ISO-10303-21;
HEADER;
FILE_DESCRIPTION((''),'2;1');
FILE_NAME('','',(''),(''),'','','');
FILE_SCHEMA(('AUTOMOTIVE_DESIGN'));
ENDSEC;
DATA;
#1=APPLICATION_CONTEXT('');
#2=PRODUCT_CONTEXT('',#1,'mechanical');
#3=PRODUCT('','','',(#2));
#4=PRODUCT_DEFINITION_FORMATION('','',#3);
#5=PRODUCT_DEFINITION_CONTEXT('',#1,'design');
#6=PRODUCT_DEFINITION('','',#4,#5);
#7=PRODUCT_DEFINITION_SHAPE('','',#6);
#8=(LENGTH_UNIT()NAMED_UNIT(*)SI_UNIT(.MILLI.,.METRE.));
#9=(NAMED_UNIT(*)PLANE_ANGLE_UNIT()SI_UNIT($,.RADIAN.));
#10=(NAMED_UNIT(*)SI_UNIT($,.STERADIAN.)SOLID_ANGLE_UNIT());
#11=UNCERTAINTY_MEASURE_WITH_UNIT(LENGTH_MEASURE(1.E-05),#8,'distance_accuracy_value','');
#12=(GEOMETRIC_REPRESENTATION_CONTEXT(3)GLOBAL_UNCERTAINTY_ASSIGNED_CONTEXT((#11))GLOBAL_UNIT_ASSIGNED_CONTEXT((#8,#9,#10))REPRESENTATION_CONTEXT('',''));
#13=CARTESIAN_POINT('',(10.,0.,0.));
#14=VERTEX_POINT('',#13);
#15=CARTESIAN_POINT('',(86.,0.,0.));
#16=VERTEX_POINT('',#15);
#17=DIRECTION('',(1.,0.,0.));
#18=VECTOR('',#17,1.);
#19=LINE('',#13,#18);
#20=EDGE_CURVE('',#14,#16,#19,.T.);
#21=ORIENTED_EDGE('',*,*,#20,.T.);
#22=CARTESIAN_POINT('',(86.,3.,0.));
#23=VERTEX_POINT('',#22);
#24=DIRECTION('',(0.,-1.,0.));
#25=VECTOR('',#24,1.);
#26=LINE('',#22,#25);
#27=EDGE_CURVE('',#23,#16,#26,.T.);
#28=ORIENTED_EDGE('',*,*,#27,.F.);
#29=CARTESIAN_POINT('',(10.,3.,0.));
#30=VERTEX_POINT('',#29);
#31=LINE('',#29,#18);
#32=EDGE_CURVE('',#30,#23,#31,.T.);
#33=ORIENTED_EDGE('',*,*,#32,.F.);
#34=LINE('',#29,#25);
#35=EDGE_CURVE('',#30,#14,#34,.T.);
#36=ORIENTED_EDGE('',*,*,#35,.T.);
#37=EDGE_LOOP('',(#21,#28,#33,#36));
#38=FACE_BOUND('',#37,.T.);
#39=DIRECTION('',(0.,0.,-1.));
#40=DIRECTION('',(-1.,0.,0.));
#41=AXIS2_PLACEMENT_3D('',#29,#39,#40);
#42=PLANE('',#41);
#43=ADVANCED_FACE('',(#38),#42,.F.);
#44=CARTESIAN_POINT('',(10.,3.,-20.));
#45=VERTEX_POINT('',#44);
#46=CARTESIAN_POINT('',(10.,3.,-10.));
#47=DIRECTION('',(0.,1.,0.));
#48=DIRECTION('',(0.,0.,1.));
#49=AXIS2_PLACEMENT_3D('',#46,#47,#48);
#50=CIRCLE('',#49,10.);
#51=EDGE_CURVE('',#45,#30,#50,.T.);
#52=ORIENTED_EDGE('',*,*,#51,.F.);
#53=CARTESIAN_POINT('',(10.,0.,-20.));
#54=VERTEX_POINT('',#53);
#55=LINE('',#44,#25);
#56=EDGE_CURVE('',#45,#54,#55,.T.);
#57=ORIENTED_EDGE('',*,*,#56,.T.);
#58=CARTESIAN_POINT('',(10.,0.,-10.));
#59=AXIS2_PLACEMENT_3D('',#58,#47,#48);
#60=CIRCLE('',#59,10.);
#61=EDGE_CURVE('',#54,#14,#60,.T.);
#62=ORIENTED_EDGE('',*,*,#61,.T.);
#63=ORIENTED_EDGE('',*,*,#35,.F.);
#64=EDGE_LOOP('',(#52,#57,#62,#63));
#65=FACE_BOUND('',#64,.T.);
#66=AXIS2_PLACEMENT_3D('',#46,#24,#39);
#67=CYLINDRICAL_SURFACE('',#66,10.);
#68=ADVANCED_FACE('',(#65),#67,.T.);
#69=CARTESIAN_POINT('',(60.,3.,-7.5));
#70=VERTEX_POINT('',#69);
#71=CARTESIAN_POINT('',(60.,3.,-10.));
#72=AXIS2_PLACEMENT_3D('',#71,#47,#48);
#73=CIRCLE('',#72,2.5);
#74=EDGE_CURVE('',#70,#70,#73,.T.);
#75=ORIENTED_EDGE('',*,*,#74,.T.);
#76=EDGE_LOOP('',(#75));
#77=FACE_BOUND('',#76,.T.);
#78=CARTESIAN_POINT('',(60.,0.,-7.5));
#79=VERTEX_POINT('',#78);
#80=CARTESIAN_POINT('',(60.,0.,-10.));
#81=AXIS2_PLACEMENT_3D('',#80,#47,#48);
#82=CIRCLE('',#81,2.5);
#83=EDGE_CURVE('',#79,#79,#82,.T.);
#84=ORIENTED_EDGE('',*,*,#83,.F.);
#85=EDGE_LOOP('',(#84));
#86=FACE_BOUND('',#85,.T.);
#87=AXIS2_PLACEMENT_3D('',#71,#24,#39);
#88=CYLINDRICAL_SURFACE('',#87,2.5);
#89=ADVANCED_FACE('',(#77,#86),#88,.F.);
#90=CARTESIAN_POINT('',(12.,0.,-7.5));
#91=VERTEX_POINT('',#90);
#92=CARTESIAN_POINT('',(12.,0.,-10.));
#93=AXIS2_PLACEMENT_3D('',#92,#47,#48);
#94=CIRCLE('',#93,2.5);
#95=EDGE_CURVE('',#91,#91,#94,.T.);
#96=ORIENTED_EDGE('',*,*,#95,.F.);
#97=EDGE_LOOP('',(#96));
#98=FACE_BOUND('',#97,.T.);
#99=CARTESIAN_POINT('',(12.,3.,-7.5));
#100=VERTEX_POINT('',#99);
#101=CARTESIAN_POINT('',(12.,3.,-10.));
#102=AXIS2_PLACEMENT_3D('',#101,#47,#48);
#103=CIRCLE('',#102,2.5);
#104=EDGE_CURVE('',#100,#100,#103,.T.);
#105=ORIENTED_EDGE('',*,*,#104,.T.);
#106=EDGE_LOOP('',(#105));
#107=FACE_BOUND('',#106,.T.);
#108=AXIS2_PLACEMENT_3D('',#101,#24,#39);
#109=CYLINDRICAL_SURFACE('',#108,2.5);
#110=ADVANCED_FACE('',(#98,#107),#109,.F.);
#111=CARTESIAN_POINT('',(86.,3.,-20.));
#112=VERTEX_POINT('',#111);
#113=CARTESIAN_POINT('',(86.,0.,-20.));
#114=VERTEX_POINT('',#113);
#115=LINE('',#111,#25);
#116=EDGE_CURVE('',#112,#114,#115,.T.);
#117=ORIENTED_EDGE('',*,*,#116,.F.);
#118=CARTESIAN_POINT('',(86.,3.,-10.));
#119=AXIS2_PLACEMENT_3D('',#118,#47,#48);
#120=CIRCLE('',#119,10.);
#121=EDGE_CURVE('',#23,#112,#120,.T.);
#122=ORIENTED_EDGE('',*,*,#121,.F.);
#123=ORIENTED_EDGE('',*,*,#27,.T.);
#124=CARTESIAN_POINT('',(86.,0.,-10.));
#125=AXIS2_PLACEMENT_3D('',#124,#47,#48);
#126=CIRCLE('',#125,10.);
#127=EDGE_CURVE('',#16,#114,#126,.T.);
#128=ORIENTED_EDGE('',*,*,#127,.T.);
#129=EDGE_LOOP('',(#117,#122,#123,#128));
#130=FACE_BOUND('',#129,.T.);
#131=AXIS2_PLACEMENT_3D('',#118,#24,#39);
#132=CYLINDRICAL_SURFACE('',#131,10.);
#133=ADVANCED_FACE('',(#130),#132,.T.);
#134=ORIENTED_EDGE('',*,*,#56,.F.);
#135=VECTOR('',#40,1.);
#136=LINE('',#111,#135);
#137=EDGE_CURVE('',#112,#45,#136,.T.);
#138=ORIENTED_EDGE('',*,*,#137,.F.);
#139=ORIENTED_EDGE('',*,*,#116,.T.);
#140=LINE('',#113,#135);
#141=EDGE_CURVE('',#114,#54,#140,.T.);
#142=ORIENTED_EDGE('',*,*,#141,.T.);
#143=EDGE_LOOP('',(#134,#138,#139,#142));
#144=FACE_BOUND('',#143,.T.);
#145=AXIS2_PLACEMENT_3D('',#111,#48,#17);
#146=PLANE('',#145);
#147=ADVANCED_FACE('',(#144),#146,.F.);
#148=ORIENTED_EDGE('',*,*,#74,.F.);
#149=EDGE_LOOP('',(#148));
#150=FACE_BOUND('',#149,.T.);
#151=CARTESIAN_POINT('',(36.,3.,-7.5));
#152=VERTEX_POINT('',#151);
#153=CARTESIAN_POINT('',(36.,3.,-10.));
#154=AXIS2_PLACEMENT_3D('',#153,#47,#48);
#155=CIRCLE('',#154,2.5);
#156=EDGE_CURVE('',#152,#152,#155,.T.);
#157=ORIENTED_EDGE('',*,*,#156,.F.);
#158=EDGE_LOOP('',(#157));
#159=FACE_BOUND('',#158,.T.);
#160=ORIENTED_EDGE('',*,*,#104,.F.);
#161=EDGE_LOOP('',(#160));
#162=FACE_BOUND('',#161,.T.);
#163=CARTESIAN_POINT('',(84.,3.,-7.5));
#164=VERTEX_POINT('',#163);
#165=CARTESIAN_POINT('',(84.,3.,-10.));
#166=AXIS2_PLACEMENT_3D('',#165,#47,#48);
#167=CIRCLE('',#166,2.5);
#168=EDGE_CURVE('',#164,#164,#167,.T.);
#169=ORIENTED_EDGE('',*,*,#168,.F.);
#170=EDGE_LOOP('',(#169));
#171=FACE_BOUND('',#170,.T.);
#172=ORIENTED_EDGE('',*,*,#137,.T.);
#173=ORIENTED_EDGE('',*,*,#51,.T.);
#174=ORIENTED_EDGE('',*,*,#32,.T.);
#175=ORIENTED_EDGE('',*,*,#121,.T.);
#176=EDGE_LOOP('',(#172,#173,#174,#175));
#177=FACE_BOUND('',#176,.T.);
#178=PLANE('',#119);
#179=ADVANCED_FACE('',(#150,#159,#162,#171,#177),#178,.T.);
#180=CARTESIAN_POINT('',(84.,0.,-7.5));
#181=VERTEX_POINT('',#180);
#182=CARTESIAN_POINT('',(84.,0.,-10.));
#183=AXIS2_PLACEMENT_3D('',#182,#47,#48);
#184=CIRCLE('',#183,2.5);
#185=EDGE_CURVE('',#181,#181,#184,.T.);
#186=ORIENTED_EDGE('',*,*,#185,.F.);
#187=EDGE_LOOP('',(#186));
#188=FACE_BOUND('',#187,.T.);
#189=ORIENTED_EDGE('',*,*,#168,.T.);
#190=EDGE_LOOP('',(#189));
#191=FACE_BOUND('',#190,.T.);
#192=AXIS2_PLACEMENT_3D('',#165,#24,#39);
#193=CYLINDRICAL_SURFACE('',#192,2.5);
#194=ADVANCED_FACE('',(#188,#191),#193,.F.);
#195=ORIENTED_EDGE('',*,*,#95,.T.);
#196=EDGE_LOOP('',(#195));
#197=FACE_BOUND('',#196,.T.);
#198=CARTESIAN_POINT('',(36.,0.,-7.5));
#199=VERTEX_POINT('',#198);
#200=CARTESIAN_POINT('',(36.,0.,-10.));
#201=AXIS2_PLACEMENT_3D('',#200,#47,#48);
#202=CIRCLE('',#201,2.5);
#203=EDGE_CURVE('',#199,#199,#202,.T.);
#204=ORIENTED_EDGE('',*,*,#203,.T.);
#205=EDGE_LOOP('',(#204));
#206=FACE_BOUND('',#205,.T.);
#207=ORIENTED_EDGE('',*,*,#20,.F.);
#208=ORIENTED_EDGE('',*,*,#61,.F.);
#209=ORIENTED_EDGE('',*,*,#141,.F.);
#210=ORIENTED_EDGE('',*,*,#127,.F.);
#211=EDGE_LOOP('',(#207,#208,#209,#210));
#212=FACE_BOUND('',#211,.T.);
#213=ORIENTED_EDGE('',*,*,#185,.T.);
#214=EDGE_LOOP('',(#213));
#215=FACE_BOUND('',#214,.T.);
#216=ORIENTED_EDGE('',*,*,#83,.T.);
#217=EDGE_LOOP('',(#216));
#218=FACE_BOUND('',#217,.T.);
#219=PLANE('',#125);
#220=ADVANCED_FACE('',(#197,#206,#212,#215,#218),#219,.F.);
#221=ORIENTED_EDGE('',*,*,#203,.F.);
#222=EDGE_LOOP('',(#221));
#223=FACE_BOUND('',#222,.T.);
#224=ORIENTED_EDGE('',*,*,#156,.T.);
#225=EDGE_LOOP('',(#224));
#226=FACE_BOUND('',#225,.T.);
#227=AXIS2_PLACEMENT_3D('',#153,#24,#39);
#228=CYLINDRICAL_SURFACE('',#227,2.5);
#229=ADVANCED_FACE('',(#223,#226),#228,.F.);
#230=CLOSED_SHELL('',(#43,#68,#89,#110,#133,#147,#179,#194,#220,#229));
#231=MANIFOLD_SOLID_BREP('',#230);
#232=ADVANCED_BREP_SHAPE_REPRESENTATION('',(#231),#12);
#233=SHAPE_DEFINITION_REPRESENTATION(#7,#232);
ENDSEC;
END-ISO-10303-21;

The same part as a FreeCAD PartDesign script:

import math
import FreeCAD as App
import Part
import Sketcher
from FreeCAD import Vector

doc = App.newDocument("Part")
body = doc.addObject("PartDesign::Body", "Body")

# Sketch on XZ plane
sketch1 = body.newObject("Sketcher::SketchObject", "Sketch")
sketch1.AttachmentSupport = (doc.getObject("XZ_Plane"), [""])
sketch1.MapMode = "FlatFace"
sketch1.addGeometry([
    Part.LineSegment(Vector(10, 0, 0), Vector(86, 0, 0)),  # 0
    Part.ArcOfCircle(Part.Circle(Vector(86, -10, 0), Vector(0, 0, 1), 10), math.radians(-90), math.radians(90)),  # 1
    Part.LineSegment(Vector(86, -20, 0), Vector(10, -20, 0)),  # 2
    Part.ArcOfCircle(Part.Circle(Vector(10, -10, 0), Vector(0, 0, 1), 10), math.radians(90), math.radians(270)),  # 3
    Part.Circle(Vector(12, -10, 0), Vector(0, 0, 1), 2.5),  # 4
    Part.Circle(Vector(36, -10, 0), Vector(0, 0, 1), 2.5),  # 5
    Part.Circle(Vector(60, -10, 0), Vector(0, 0, 1), 2.5),  # 6
    Part.Circle(Vector(84, -10, 0), Vector(0, 0, 1), 2.5),  # 7
], False)
sketch1.addConstraint([
    Sketcher.Constraint("Tangent", 0, 2, 1, 2),
    Sketcher.Constraint("Tangent", 1, 1, 2, 1),
    Sketcher.Constraint("Tangent", 2, 2, 3, 2),
    Sketcher.Constraint("Tangent", 3, 1, 0, 1),
    Sketcher.Constraint("Horizontal", 0),
    Sketcher.Constraint("Horizontal", 2),
    Sketcher.Constraint("Equal", 4, 5),
    Sketcher.Constraint("Equal", 5, 6),
    Sketcher.Constraint("Equal", 6, 7),
    Sketcher.Constraint("PointOnObject", 0, 2, -1),
    Sketcher.Constraint("Horizontal", 3, 3, 4, 3),
    Sketcher.Constraint("Horizontal", 4, 3, 5, 3),
    Sketcher.Constraint("Horizontal", 5, 3, 6, 3),
    Sketcher.Constraint("Horizontal", 6, 3, 7, 3),
    Sketcher.Constraint("Diameter", 4, 5.0),
    Sketcher.Constraint("Radius", 1, 10.0),
    Sketcher.Constraint("DistanceX", 0, 1, 0, 2, 76.0),
    Sketcher.Constraint("DistanceX", -1, 1, 1, 3, 86.0),
    Sketcher.Constraint("DistanceX", -1, 1, 4, 3, 12.0),
    Sketcher.Constraint("DistanceX", -1, 1, 5, 3, 36.0),
    Sketcher.Constraint("DistanceX", -1, 1, 6, 3, 60.0),
    Sketcher.Constraint("DistanceX", -1, 1, 7, 3, 84.0),
])
pad1 = body.newObject("PartDesign::Pad", "Pad")
pad1.Profile = sketch1
pad1.Length = 3
pad1.Reversed = True

doc.recompute()
